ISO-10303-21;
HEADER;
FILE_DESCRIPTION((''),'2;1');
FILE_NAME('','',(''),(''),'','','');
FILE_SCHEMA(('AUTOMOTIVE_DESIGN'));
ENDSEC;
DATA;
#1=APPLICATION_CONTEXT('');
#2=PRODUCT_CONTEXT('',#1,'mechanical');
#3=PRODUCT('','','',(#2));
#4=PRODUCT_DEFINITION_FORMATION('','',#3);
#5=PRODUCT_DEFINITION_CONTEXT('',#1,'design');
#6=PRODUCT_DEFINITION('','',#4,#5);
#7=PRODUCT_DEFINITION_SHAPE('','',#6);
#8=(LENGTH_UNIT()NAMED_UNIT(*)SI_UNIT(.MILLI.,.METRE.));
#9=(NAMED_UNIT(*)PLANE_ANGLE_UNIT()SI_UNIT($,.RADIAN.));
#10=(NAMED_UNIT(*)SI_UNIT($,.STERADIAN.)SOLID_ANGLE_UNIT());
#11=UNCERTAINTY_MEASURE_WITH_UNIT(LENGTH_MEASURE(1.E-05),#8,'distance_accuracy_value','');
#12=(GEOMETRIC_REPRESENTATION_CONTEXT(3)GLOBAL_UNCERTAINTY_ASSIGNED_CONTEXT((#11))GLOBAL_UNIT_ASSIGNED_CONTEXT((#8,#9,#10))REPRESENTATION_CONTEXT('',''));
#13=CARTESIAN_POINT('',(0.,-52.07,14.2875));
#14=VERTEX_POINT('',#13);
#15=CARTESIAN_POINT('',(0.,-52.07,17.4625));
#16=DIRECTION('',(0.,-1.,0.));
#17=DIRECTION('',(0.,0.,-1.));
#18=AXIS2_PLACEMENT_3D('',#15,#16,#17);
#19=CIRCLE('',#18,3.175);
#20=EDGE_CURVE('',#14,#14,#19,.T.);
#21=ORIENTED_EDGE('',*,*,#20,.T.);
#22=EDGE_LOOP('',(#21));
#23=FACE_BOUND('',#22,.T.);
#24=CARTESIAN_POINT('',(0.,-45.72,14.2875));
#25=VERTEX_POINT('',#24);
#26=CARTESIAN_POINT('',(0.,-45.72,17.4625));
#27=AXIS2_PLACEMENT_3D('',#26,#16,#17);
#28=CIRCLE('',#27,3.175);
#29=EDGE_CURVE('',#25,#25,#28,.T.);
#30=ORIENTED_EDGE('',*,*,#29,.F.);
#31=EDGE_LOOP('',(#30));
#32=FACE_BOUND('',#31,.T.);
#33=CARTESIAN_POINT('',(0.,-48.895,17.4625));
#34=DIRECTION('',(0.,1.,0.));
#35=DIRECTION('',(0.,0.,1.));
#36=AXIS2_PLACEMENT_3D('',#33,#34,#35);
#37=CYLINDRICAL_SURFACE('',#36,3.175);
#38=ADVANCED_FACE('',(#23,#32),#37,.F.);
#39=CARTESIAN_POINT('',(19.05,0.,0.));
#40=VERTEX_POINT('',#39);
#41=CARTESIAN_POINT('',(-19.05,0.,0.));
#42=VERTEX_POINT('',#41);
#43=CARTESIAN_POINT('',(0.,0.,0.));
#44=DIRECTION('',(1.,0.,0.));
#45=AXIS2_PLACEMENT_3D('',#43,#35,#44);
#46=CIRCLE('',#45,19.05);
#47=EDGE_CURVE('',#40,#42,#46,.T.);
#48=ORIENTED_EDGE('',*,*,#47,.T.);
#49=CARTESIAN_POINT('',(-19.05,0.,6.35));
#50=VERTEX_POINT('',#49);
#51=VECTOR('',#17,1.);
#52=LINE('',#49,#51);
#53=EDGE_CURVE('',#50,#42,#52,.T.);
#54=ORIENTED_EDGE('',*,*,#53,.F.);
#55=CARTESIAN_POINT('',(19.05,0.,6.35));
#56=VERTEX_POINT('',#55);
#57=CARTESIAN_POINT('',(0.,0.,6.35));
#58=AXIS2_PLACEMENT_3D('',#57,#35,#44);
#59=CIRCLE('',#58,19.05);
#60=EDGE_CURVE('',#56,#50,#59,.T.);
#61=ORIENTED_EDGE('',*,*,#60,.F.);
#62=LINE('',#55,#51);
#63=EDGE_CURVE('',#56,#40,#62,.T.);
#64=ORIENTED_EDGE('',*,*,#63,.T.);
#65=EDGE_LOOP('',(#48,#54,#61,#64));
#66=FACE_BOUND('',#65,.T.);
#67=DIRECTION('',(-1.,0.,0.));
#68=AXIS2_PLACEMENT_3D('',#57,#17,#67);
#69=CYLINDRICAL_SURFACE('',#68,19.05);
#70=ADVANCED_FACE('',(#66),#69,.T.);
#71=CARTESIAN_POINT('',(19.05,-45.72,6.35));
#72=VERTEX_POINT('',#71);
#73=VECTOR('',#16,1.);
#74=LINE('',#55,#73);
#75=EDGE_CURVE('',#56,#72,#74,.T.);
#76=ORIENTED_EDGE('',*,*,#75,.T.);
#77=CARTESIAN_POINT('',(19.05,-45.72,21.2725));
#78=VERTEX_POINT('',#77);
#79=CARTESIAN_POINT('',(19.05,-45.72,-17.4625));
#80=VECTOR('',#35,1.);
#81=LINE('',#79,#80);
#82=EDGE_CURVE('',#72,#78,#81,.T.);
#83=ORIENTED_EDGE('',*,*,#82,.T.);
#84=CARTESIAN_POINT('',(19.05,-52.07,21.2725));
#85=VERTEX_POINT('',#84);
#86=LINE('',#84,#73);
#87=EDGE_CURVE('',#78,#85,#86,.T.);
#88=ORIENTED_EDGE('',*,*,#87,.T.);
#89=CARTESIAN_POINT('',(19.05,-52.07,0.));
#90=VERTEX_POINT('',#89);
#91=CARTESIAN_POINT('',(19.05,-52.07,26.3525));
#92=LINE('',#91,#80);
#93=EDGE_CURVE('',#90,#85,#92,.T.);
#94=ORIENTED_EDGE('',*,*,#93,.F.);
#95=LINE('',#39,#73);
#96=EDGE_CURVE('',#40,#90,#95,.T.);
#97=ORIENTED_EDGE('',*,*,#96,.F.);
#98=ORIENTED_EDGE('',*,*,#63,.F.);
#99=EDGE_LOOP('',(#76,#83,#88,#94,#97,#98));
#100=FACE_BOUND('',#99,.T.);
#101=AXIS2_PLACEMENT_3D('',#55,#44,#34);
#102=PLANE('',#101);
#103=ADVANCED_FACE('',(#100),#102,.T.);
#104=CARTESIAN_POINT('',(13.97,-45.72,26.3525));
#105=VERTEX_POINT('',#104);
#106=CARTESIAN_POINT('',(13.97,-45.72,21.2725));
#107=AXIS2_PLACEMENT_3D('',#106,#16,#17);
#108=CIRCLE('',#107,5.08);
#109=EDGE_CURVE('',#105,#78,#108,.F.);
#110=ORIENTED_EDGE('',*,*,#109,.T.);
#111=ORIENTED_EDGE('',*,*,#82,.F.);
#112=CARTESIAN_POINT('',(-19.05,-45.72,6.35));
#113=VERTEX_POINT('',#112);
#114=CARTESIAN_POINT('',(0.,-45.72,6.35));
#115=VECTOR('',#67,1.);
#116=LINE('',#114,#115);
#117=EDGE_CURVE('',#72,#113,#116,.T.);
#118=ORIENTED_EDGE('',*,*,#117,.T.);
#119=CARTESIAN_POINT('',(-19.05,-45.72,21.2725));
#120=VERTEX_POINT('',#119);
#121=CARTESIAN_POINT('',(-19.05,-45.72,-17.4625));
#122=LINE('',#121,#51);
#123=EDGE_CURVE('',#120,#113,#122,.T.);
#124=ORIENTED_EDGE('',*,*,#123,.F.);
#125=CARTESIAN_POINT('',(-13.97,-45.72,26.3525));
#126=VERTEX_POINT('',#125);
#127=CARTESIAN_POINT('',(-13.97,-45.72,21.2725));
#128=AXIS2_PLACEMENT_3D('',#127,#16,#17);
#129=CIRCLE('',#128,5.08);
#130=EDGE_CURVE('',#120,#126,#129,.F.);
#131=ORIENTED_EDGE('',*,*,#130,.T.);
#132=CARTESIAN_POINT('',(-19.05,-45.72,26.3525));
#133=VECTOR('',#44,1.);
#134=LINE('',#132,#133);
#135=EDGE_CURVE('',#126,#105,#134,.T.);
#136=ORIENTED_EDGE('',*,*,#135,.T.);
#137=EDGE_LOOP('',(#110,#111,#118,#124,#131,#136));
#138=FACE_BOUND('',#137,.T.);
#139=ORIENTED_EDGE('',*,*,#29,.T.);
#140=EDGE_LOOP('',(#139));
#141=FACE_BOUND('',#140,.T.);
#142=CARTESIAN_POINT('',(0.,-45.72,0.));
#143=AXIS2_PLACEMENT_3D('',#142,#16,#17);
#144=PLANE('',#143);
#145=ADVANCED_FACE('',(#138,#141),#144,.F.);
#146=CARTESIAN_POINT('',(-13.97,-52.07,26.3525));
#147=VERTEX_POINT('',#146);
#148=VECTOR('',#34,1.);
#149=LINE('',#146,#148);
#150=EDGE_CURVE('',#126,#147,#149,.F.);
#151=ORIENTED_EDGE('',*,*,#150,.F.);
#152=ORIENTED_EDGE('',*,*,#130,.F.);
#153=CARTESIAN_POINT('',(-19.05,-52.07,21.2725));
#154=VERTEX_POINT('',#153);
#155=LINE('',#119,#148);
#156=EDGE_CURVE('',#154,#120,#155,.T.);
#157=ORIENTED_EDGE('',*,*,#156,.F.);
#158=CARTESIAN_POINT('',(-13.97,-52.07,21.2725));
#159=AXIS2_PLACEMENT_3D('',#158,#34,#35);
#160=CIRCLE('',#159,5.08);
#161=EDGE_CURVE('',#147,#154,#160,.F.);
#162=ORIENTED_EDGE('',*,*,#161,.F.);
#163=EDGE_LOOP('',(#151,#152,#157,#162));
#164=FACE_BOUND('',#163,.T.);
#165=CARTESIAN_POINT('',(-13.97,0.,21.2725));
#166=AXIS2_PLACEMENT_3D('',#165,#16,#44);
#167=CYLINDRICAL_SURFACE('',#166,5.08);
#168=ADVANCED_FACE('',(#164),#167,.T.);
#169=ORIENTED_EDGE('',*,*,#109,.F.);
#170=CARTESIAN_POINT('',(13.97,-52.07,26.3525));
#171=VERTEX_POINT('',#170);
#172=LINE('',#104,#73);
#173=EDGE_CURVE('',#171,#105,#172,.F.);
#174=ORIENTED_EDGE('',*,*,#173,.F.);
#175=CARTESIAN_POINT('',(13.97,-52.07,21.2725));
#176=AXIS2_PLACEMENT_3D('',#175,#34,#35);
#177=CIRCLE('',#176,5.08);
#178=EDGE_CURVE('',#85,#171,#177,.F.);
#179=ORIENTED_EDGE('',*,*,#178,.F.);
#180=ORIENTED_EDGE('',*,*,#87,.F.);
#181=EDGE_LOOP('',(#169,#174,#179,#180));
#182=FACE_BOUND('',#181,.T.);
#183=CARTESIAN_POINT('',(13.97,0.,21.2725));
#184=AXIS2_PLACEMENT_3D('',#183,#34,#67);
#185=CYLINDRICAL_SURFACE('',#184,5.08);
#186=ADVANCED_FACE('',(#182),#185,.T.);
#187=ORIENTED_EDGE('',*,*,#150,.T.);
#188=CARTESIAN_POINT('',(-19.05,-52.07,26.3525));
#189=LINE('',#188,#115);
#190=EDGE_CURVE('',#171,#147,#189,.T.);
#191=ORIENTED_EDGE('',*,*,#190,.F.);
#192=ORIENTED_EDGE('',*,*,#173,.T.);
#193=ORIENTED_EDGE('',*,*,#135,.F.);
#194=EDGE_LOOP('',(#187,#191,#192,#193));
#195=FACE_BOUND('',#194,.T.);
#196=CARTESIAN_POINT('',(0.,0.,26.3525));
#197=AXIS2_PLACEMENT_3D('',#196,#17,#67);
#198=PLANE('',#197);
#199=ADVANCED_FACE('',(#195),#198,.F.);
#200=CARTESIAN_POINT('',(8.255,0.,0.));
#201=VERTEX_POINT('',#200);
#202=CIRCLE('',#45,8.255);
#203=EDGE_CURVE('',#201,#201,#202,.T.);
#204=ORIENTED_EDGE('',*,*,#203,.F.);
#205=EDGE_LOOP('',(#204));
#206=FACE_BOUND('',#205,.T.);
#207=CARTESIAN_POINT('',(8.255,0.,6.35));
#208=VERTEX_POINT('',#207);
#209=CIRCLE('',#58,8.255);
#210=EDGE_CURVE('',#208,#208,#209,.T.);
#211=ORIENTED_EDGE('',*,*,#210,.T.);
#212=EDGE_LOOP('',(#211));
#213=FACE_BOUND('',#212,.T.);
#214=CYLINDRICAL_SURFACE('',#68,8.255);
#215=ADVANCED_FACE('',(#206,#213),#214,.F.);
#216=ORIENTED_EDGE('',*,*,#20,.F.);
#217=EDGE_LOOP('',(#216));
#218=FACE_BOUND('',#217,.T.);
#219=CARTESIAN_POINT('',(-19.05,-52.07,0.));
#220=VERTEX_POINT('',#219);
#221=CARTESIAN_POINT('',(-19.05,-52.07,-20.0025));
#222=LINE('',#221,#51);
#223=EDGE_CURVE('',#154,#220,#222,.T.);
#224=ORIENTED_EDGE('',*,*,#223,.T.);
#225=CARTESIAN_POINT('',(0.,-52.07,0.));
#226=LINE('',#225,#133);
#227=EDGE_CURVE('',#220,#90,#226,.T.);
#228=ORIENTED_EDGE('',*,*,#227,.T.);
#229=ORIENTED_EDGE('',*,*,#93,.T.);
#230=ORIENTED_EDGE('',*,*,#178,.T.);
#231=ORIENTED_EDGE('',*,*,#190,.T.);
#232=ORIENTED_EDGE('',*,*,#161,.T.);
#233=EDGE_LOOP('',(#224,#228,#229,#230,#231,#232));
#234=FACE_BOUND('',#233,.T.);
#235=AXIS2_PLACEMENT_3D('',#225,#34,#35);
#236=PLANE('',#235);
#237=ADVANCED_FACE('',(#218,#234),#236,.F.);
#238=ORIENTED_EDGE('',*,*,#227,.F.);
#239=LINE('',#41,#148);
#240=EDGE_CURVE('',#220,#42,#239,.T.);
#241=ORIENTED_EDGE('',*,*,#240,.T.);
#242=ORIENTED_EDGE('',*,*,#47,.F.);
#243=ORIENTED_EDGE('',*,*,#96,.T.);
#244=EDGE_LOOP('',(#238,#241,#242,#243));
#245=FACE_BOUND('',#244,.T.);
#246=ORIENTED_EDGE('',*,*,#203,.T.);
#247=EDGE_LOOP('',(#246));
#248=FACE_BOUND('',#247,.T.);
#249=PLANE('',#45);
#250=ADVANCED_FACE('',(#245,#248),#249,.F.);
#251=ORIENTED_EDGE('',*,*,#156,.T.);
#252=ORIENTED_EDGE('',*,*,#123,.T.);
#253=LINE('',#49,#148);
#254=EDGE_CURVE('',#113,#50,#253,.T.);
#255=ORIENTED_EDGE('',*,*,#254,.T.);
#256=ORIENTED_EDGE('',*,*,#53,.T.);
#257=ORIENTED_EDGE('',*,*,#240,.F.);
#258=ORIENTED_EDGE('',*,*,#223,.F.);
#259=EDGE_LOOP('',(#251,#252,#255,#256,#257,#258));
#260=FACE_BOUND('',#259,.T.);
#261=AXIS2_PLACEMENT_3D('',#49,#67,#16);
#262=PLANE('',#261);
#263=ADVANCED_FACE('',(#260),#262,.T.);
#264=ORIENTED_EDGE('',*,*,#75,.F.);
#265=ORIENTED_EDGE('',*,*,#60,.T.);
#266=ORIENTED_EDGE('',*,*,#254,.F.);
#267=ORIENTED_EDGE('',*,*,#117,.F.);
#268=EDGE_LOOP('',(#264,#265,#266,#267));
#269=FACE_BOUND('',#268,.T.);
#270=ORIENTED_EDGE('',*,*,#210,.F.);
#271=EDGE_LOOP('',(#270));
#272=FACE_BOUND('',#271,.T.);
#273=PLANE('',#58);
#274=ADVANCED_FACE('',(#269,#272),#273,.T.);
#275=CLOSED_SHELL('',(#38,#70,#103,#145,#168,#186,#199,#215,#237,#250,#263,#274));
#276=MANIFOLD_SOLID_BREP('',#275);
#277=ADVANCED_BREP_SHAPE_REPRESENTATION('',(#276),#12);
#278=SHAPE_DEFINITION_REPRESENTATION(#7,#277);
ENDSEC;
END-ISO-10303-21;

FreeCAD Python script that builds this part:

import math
import FreeCAD as App
import Part
import Sketcher
from FreeCAD import Vector
Q = App.Units.Quantity


def edges_at(feature, points):
    """Names of the edges that pass closest to the given points."""
    edges = feature.Shape.Edges
    near = lambda p: min(range(len(edges)), key=lambda i: edges[i].distToShape(Part.Vertex(*p))[0])
    return sorted({f"Edge{near(p) + 1}" for p in points})

doc = App.newDocument("Part")
body = doc.addObject("PartDesign::Body", "Body")

sketch1 = body.newObject("Sketcher::SketchObject", "Sketch")
sketch1.AttachmentSupport = (doc.getObject("XY_Plane"), [""])
sketch1.MapMode = "FlatFace"
sketch1.addGeometry([
    Part.ArcOfCircle(Part.Circle(Vector(0, 0, 0), Vector(0, 0, 1), 19), math.radians(0), math.radians(180)),
    Part.LineSegment(Vector(-19, 0, 0), Vector(-19, -46, 0)),
    Part.LineSegment(Vector(-19, -46, 0), Vector(19, -46, 0)),
    Part.LineSegment(Vector(19, -46, 0), Vector(19, 0, 0)),
    Part.Circle(Vector(0, 0, 0), Vector(0, 0, 1), 8),
], False)
sketch1.addConstraint([
    Sketcher.Constraint("Tangent", 0, 2, 1, 1),
    Sketcher.Constraint("Coincident", 1, 2, 2, 1),
    Sketcher.Constraint("Coincident", 2, 2, 3, 1),
    Sketcher.Constraint("Tangent", 3, 2, 0, 1),
    Sketcher.Constraint("Vertical", 1),
    Sketcher.Constraint("Horizontal", 2),
    Sketcher.Constraint("Vertical", 3),
    Sketcher.Constraint("Coincident", 0, 3, -1, 1),
    Sketcher.Constraint("Coincident", 4, 3, -1, 1),
    Sketcher.Constraint("Diameter", 4, Q("0.65 in")),
    Sketcher.Constraint("Radius", 0, Q("0.75 in")),
    Sketcher.Constraint("DistanceY", 1, 2, 1, 1, Q("1.8 in")),
])
pad1 = body.newObject("PartDesign::Pad", "Pad")
pad1.Profile = sketch1
pad1.Length = Q("0.25 in")

sketch2 = body.newObject("Sketcher::SketchObject", "Sketch001")
sketch2.AttachmentSupport = (doc.getObject("XZ_Plane"), [""])
sketch2.MapMode = "FlatFace"
sketch2.AttachmentOffset = App.Placement(Vector(0, 0, 1.8 * 25.4), App.Rotation())
sketch2.addGeometry([
    Part.LineSegment(Vector(-19.1, 23.8, 0), Vector(-19.1, -17.5, 0)),
    Part.LineSegment(Vector(-19.1, -17.5, 0), Vector(19.1, -17.5, 0)),
    Part.LineSegment(Vector(19.1, -17.5, 0), Vector(19.1, 23.8, 0)),
    Part.LineSegment(Vector(19.1, 23.8, 0), Vector(-19.1, 23.8, 0)),
    Part.Circle(Vector(0, -11.1, 0), Vector(0, 0, 1), 3.2),
    Part.Circle(Vector(0, 17.5, 0), Vector(0, 0, 1), 3.2),
], False)
sketch2.addConstraint([
    Sketcher.Constraint("Coincident", 0, 2, 1, 1),
    Sketcher.Constraint("Coincident", 1, 2, 2, 1),
    Sketcher.Constraint("Coincident", 2, 2, 3, 1),
    Sketcher.Constraint("Coincident", 3, 2, 0, 1),
    Sketcher.Constraint("Vertical", 0),
    Sketcher.Constraint("Horizontal", 1),
    Sketcher.Constraint("Vertical", 2),
    Sketcher.Constraint("Horizontal", 3),
    Sketcher.Constraint("Equal", 4, 5),
    Sketcher.Constraint("PointOnObject", 4, 3, -2),
    Sketcher.Constraint("PointOnObject", 5, 3, -2),
    Sketcher.Constraint("Diameter", 4, Q("0.25 in")),
    Sketcher.Constraint("DistanceX", 1, 1, 1, 2, Q("1.5 in")),
    Sketcher.Constraint("DistanceY", 0, 2, 0, 1, Q("1.625 in")),
    Sketcher.Constraint("DistanceX", 0, 2, -1, 1, Q("0.75 in")),
    Sketcher.Constraint("DistanceY", 0, 2, 4, 3, Q("0.25 in")),
    Sketcher.Constraint("DistanceY", 5, 3, 2, 2, Q("0.25 in")),
    Sketcher.Constraint("DistanceY", 4, 3, -1, 1, Q("0.4375 in")),
])
pad2 = body.newObject("PartDesign::Pad", "Pad001")
pad2.Profile = sketch2
pad2.Length = Q("0.125 in")

sketch3 = body.newObject("Sketcher::SketchObject", "Sketch002")
sketch3.AttachmentSupport = (doc.getObject("XY_Plane"), [""])
sketch3.MapMode = "FlatFace"
sketch3.AttachmentOffset = App.Placement(Vector(0, 0, 0.9375 * 25.4), App.Rotation())
sketch3.addGeometry([
    Part.LineSegment(Vector(-19.1, -45.7, 0), Vector(-19.1, -48.9, 0)),
    Part.LineSegment(Vector(-19.1, -48.9, 0), Vector(19.1, -48.9, 0)),
    Part.LineSegment(Vector(19.1, -48.9, 0), Vector(19.1, -45.7, 0)),
    Part.LineSegment(Vector(19.1, -45.7, 0), Vector(-19.1, -45.7, 0)),
], False)
sketch3.addConstraint([
    Sketcher.Constraint("Coincident", 0, 2, 1, 1),
    Sketcher.Constraint("Coincident", 1, 2, 2, 1),
    Sketcher.Constraint("Coincident", 2, 2, 3, 1),
    Sketcher.Constraint("Coincident", 3, 2, 0, 1),
    Sketcher.Constraint("Vertical", 0),
    Sketcher.Constraint("Horizontal", 1),
    Sketcher.Constraint("Vertical", 2),
    Sketcher.Constraint("Horizontal", 3),
    Sketcher.Constraint("DistanceX", 1, 1, 1, 2, Q("1.5 in")),
    Sketcher.Constraint("DistanceY", 2, 2, -1, 1, Q("1.8 in")),
    Sketcher.Constraint("DistanceY", 0, 2, 0, 1, Q("0.125 in")),
    Sketcher.Constraint("DistanceX", 0, 2, -1, 1, Q("0.75 in")),
])
pad3 = body.newObject("PartDesign::Pad", "Pad002")
pad3.Profile = sketch3
pad3.Length = Q("0.1 in")
doc.recompute()

datumplane = body.newObject("PartDesign::Plane", "DatumPlane")
datumplane.AttachmentSupport = (doc.getObject("XY_Plane"), [""])
datumplane.MapMode = "FlatFace"
datumplane.AttachmentOffset = App.Placement(Vector(0, 0, 0.125 * 25.4), App.Rotation())
mirrored = body.newObject("PartDesign::Mirrored", "Mirrored")
mirrored.Originals = [pad3]
mirrored.MirrorPlane = (datumplane, [""])
body.Tip = mirrored

sketch4 = body.newObject("Sketcher::SketchObject", "Sketch003")
sketch4.AttachmentSupport = (doc.getObject("XZ_Plane"), [""])
sketch4.MapMode = "FlatFace"
sketch4.AttachmentOffset = App.Placement(Vector(0, 0, 1.925 * 25.4), App.Rotation())
sketch4.addGeometry([
    Part.LineSegment(Vector(-19, 26, 0), Vector(-19, -20, 0)),
    Part.LineSegment(Vector(-19, -20, 0), Vector(19, -20, 0)),
    Part.LineSegment(Vector(19, -20, 0), Vector(19, 26, 0)),
    Part.LineSegment(Vector(19, 26, 0), Vector(-19, 26, 0)),
], False)
sketch4.addConstraint([
    Sketcher.Constraint("Coincident", 0, 2, 1, 1),
    Sketcher.Constraint("Coincident", 1, 2, 2, 1),
    Sketcher.Constraint("Coincident", 2, 2, 3, 1),
    Sketcher.Constraint("Coincident", 3, 2, 0, 1),
    Sketcher.Constraint("Vertical", 0),
    Sketcher.Constraint("Horizontal", 1),
    Sketcher.Constraint("Vertical", 2),
    Sketcher.Constraint("Horizontal", 3),
    Sketcher.Constraint("DistanceX", 1, 1, 1, 2, Q("1.5 in")),
    Sketcher.Constraint("DistanceY", 0, 2, 0, 1, Q("1.825 in")),
    Sketcher.Constraint("DistanceX", 0, 2, -1, 1, Q("0.75 in")),
    Sketcher.Constraint("DistanceY", 0, 2, -1, 1, Q("0.7875 in")),
])
pad4 = body.newObject("PartDesign::Pad", "Pad003")
pad4.Profile = sketch4
pad4.Length = Q("0.125 in")

sketch5 = body.newObject("Sketcher::SketchObject", "Sketch004")
sketch5.AttachmentSupport = (doc.getObject("XZ_Plane"), [""])
sketch5.MapMode = "FlatFace"
sketch5.AttachmentOffset = App.Placement(Vector(0, 0, 1.8 * 25.4), App.Rotation())
sketch5.addGeometry(Part.Circle(Vector(0, -11.1, 0), Vector(0, 0, 1), 3.2), False)
sketch5.addConstraint([
    Sketcher.Constraint("PointOnObject", 0, 3, -2),
    Sketcher.Constraint("Diameter", 0, Q("0.25 in")),
    Sketcher.Constraint("DistanceY", 0, 3, -1, 1, Q("0.4375 in")),
])
pocket1 = body.newObject("PartDesign::Pocket", "Pocket")
pocket1.Profile = sketch5
pocket1.Length = Q("0.25 in")
pocket1.Reversed = True
doc.recompute()

datumplane2 = body.newObject("PartDesign::Plane", "DatumPlane001")
datumplane2.AttachmentSupport = (doc.getObject("XY_Plane"), [""])
datumplane2.MapMode = "FlatFace"
datumplane2.AttachmentOffset = App.Placement(Vector(0, 0, 0.125 * 25.4), App.Rotation())
mirrored2 = body.newObject("PartDesign::Mirrored", "Mirrored001")
mirrored2.Originals = [pocket1]
mirrored2.MirrorPlane = (datumplane2, [""])
body.Tip = mirrored2
doc.recompute()

fillet = body.newObject("PartDesign::Fillet", "Fillet")
fillet.Base = (mirrored2, edges_at(mirrored2, [
    (19.05, -48.895, 26.352),
    (-19.05, -48.895, 26.352),
    (-19.05, -48.895, -20.003),
    (19.05, -48.895, -20.003),
]))
fillet.Radius = Q("0.2 in")

sketch6 = body.newObject("Sketcher::SketchObject", "Sketch005")
sketch6.AttachmentSupport = (doc.getObject("XY_Plane"), [""])
sketch6.MapMode = "FlatFace"
sketch6.AttachmentOffset = App.Placement(Vector(0, 0, -0.7875 * 25.4), App.Rotation())
sketch6.addGeometry([
    Part.LineSegment(Vector(36, -40, 0), Vector(36, -55, 0)),
    Part.LineSegment(Vector(36, -55, 0), Vector(-34, -55, 0)),
    Part.LineSegment(Vector(-34, -55, 0), Vector(-34, -40, 0)),
    Part.LineSegment(Vector(-34, -40, 0), Vector(36, -40, 0)),
], False)
sketch6.addConstraint([
    Sketcher.Constraint("Coincident", 0, 2, 1, 1),
    Sketcher.Constraint("Coincident", 1, 2, 2, 1),
    Sketcher.Constraint("Coincident", 2, 2, 3, 1),
    Sketcher.Constraint("Coincident", 3, 2, 0, 1),
    Sketcher.Constraint("Vertical", 0),
    Sketcher.Constraint("Horizontal", 1),
    Sketcher.Constraint("Vertical", 2),
    Sketcher.Constraint("Horizontal", 3),
    Sketcher.Constraint("DistanceX", 1, 2, 1, 1, Q("70.311292 mm")),
    Sketcher.Constraint("DistanceY", 0, 2, 0, 1, Q("15.46298 mm")),
    Sketcher.Constraint("DistanceY", 0, 2, -1, 1, Q("55.360372 mm")),
    Sketcher.Constraint("DistanceX", -1, 1, 0, 2, Q("36.201674 mm")),
])
pocket2 = body.newObject("PartDesign::Pocket", "Pocket001")
pocket2.Profile = sketch6
pocket2.Length = Q("0.7875 in")
pocket2.Reversed = True

doc.recompute()
